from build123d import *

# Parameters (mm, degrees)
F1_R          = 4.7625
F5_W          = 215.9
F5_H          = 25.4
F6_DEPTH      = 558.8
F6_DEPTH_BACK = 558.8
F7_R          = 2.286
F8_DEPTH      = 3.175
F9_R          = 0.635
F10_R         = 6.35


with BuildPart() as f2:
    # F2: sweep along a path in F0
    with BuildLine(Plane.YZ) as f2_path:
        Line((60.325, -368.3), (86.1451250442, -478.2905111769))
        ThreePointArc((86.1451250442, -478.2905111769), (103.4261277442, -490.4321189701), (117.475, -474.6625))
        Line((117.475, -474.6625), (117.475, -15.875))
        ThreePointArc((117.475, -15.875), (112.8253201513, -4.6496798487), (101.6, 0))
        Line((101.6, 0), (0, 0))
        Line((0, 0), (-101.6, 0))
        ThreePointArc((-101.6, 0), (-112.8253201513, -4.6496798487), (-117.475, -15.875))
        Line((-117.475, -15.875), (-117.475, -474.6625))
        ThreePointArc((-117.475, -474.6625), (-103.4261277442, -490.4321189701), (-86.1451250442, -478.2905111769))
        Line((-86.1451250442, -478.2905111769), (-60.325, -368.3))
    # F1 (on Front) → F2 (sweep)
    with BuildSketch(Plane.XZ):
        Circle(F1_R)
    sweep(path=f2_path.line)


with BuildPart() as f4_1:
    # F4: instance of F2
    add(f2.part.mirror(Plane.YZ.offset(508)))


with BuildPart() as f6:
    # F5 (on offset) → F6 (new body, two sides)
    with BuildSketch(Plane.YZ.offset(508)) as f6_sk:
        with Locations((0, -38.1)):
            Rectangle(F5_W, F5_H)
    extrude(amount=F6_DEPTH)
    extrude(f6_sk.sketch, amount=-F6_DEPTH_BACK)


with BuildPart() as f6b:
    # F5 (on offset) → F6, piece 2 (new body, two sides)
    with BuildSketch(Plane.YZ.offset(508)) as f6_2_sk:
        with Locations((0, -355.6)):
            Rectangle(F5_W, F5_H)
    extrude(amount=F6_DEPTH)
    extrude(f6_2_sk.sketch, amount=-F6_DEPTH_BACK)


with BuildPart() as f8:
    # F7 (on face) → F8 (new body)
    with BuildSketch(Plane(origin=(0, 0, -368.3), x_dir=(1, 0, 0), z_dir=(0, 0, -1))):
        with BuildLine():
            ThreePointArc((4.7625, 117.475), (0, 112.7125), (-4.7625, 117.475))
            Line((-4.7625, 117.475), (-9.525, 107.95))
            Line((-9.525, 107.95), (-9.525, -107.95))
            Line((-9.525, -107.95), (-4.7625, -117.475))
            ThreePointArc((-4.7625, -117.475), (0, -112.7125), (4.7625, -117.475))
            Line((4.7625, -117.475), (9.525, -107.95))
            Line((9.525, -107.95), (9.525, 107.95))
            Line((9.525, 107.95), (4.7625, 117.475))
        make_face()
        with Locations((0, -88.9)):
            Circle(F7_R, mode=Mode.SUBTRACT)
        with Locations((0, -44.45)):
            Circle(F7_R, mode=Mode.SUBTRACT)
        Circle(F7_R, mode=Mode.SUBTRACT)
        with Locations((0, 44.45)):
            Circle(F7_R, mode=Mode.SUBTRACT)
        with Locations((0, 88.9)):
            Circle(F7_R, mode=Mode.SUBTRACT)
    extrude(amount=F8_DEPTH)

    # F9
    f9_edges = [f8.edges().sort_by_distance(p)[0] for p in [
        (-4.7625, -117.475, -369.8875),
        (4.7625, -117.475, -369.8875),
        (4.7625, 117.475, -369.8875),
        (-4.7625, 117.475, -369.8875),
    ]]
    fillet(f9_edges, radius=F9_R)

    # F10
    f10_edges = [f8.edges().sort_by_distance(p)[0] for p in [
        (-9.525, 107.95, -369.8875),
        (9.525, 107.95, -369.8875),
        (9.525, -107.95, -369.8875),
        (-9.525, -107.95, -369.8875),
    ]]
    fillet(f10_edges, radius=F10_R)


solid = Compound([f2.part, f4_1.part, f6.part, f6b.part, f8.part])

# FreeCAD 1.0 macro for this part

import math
import FreeCAD as App
import Part
import Sketcher
Q = App.Units.Quantity


def edges_at(feature, points):
    """Names of the edges that pass closest to the given points."""
    edges = feature.Shape.Edges
    near = lambda p: min(range(len(edges)), key=lambda i: edges[i].distToShape(Part.Vertex(*p))[0])
    return sorted({f"Edge{near(p) + 1}" for p in points})


def add_polygon(sketch, points):
    """Adds a closed chain of lines whose ends are joined by coincident constraints."""
    first, n = sketch.GeometryCount, len(points)
    for a, b in zip(points, points[1:] + points[:1]):
        sketch.addGeometry(Part.LineSegment(App.Vector(*a, 0), App.Vector(*b, 0)), False)
    for i in range(n):
        sketch.addConstraint(Sketcher.Constraint("Coincident", first + i, 2, first + (i + 1) % n, 1))

doc = App.newDocument("Part")
body = doc.addObject("PartDesign::Body", "Body")

# Sketch on XZ plane
sketch1 = doc.addObject("Sketcher::SketchObject", "Sketch")
body.addObject(sketch1)
sketch1.AttachmentSupport = (doc.XZ_Plane, [""])
sketch1.MapMode = "FlatFace"
sketch1.addGeometry(Part.Circle(App.Vector(0, 0, 0), App.Vector(0, 0, 1), 4.8), False)
sketch1.addConstraint(Sketcher.Constraint("Coincident", 0, 3, -1, 1))
sketch1.addConstraint(Sketcher.Constraint("Diameter", 0, Q("0.375 in")))

# Sketch on YZ plane
sketch2 = doc.addObject("Sketcher::SketchObject", "Sketch001")
body.addObject(sketch2)
sketch2.AttachmentSupport = (doc.YZ_Plane, [""])
sketch2.MapMode = "FlatFace"
sketch2.addGeometry(Part.LineSegment(App.Vector(60, -368, 0), App.Vector(86, -478, 0)), False)
sketch2.addGeometry(Part.ArcOfCircle(Part.Circle(App.Vector(102, -475, 0), App.Vector(0, 0, 1), 16), math.radians(-167), math.radians(0)), False)
sketch2.addGeometry(Part.LineSegment(App.Vector(117, -475, 0), App.Vector(117, -16, 0)), False)
sketch2.addGeometry(Part.ArcOfCircle(Part.Circle(App.Vector(102, -16, 0), App.Vector(0, 0, 1), 16), math.radians(0), math.radians(90)), False)
sketch2.addGeometry(Part.LineSegment(App.Vector(102, 0, 0), App.Vector(-102, 0, 0)), False)
sketch2.addGeometry(Part.ArcOfCircle(Part.Circle(App.Vector(-102, -16, 0), App.Vector(0, 0, 1), 16), math.radians(90), math.radians(180)), False)
sketch2.addGeometry(Part.LineSegment(App.Vector(-117, -16, 0), App.Vector(-117, -475, 0)), False)
sketch2.addGeometry(Part.ArcOfCircle(Part.Circle(App.Vector(-102, -475, 0), App.Vector(0, 0, 1), 16), math.radians(180), math.radians(347)), False)
sketch2.addGeometry(Part.LineSegment(App.Vector(-86, -478, 0), App.Vector(-60, -368, 0)), False)
sketch2.addConstraint(Sketcher.Constraint("Tangent", 0, 2, 1, 1))
sketch2.addConstraint(Sketcher.Constraint("Tangent", 1, 2, 2, 1))
sketch2.addConstraint(Sketcher.Constraint("Tangent", 2, 2, 3, 1))
sketch2.addConstraint(Sketcher.Constraint("Tangent", 3, 2, 4, 1))
sketch2.addConstraint(Sketcher.Constraint("Tangent", 4, 2, 5, 1))
sketch2.addConstraint(Sketcher.Constraint("Tangent", 5, 2, 6, 1))
sketch2.addConstraint(Sketcher.Constraint("Tangent", 6, 2, 7, 1))
sketch2.addConstraint(Sketcher.Constraint("Tangent", 7, 2, 8, 1))
sketch2.addConstraint(Sketcher.Constraint("Vertical", 2))
sketch2.addConstraint(Sketcher.Constraint("Horizontal", 4))
sketch2.addConstraint(Sketcher.Constraint("Vertical", 6))
sketch2.addConstraint(Sketcher.Constraint("Equal", 1, 3))
sketch2.addConstraint(Sketcher.Constraint("Equal", 3, 5))
sketch2.addConstraint(Sketcher.Constraint("Equal", 5, 7))
sketch2.addConstraint(Sketcher.Constraint("Symmetric", 3, 2, 4, 2, -1, 1))
sketch2.addConstraint(Sketcher.Constraint("Symmetric", 0, 2, 7, 2, -2))
sketch2.addConstraint(Sketcher.Constraint("Horizontal", 0, 1, 8, 2))
sketch2.addConstraint(Sketcher.Constraint("DistanceX", 4, 2, 4, 1, Q("8 in")))
sketch2.addConstraint(Sketcher.Constraint("Radius", 1, Q("0.625 in")))
sketch2.addConstraint(Sketcher.Constraint("DistanceX", 6, 2, 0, 1, Q("7 in")))
sketch2.addConstraint(Sketcher.Constraint("DistanceY", 0, 1, -1, 1, Q("14.5 in")))
sketch2.addConstraint(Sketcher.Constraint("DistanceY", 2, 1, 2, 2, Q("18.0625 in")))
doc.recompute()

additivepipe = doc.addObject("PartDesign::AdditivePipe", "AdditivePipe")
body.addObject(additivepipe)
additivepipe.Profile = sketch1
additivepipe.Spine = (sketch2, ["Edge1", "Edge2", "Edge3", "Edge4", "Edge5", "Edge6", "Edge7", "Edge8", "Edge9"])
body2 = doc.addObject("PartDesign::Body", "Body001")
doc.recompute()

mirroring = doc.addObject("Part::Mirroring", "Mirroring")
mirroring.Source = body
mirroring.Base = App.Vector(508, 0, 0)
mirroring.Normal = App.Vector(1, 0, 0)
body2.BaseFeature = mirroring
doc.recompute()
body3 = doc.addObject("PartDesign::Body", "Body002")

# Sketch on YZ plane
sketch3 = doc.addObject("Sketcher::SketchObject", "Sketch002")
body3.addObject(sketch3)
sketch3.AttachmentSupport = (doc.getObject("YZ_Plane002"), [""])
sketch3.MapMode = "FlatFace"
sketch3.AttachmentOffset = App.Placement(App.Vector(0, 0, 20 * 25.4), App.Rotation())
add_polygon(sketch3, [(-108, -25), (-108, -51), (108, -51), (108, -25)])  # lines 0-3
sketch3.addConstraint(Sketcher.Constraint("Vertical", 0))
sketch3.addConstraint(Sketcher.Constraint("Horizontal", 1))
sketch3.addConstraint(Sketcher.Constraint("Vertical", 2))
sketch3.addConstraint(Sketcher.Constraint("Horizontal", 3))
sketch3.addConstraint(Sketcher.Constraint("DistanceY", 0, 2, 0, 1, Q("1 in")))
sketch3.addConstraint(Sketcher.Constraint("DistanceX", 1, 1, 1, 2, Q("8.5 in")))
sketch3.addConstraint(Sketcher.Constraint("DistanceY", 0, 2, -1, 1, Q("2 in")))
sketch3.addConstraint(Sketcher.Constraint("DistanceX", 0, 2, -1, 1, Q("4.25 in")))
pad1 = doc.addObject("PartDesign::Pad", "Pad")
body3.addObject(pad1)
pad1.Profile = sketch3
pad1.Type = "TwoLengths"
pad1.Length = Q("22 in")
pad1.Length2 = Q("22 in")
body4 = doc.addObject("PartDesign::Body", "Body003")

# Sketch on YZ plane
sketch4 = doc.addObject("Sketcher::SketchObject", "Sketch003")
body4.addObject(sketch4)
sketch4.AttachmentSupport = (doc.getObject("YZ_Plane003"), [""])
sketch4.MapMode = "FlatFace"
sketch4.AttachmentOffset = App.Placement(App.Vector(0, 0, 20 * 25.4), App.Rotation())
add_polygon(sketch4, [(-108, -343), (-108, -368), (108, -368), (108, -343)])  # lines 0-3
sketch4.addConstraint(Sketcher.Constraint("Vertical", 0))
sketch4.addConstraint(Sketcher.Constraint("Horizontal", 1))
sketch4.addConstraint(Sketcher.Constraint("Vertical", 2))
sketch4.addConstraint(Sketcher.Constraint("Horizontal", 3))
sketch4.addConstraint(Sketcher.Constraint("DistanceY", 0, 2, 0, 1, Q("1 in")))
sketch4.addConstraint(Sketcher.Constraint("DistanceX", 1, 1, 1, 2, Q("8.5 in")))
sketch4.addConstraint(Sketcher.Constraint("DistanceY", 0, 2, -1, 1, Q("14.5 in")))
sketch4.addConstraint(Sketcher.Constraint("DistanceX", 0, 2, -1, 1, Q("4.25 in")))
pad2 = doc.addObject("PartDesign::Pad", "Pad001")
body4.addObject(pad2)
pad2.Profile = sketch4
pad2.Type = "TwoLengths"
pad2.Length = Q("22 in")
pad2.Length2 = Q("22 in")
body5 = doc.addObject("PartDesign::Body", "Body004")

# Sketch on XY plane
sketch5 = doc.addObject("Sketcher::SketchObject", "Sketch004")
body5.addObject(sketch5)
sketch5.AttachmentSupport = (doc.getObject("XY_Plane004"), [""])
sketch5.MapMode = "FlatFace"
sketch5.AttachmentOffset = App.Placement(App.Vector(0, 0, -14.5 * 25.4), App.Rotation())
sketch5.addGeometry(Part.ArcOfCircle(Part.Circle(App.Vector(0, -117.5, 0), App.Vector(0, 0, 1), 4.8), math.radians(0), math.radians(180)), False)
sketch5.addGeometry(Part.LineSegment(App.Vector(-4.8, -117.5, 0), App.Vector(-9.5, -108, 0)), False)
sketch5.addGeometry(Part.LineSegment(App.Vector(-9.5, -108, 0), App.Vector(-9.5, 108, 0)), False)
sketch5.addGeometry(Part.LineSegment(App.Vector(-9.5, 108, 0), App.Vector(-4.8, 117.5, 0)), False)
sketch5.addGeometry(Part.ArcOfCircle(Part.Circle(App.Vector(0, 117.5, 0), App.Vector(0, 0, 1), 4.8), math.radians(180), math.radians(360)), False)
sketch5.addGeometry(Part.LineSegment(App.Vector(4.8, 117.5, 0), App.Vector(9.5, 108, 0)), False)
sketch5.addGeometry(Part.LineSegment(App.Vector(9.5, 108, 0), App.Vector(9.5, -108, 0)), False)
sketch5.addGeometry(Part.LineSegment(App.Vector(9.5, -108, 0), App.Vector(4.8, -117.5, 0)), False)
sketch5.addGeometry(Part.Circle(App.Vector(0, 88.9, 0), App.Vector(0, 0, 1), 2.3), False)
sketch5.addGeometry(Part.Circle(App.Vector(0, 44.5, 0), App.Vector(0, 0, 1), 2.3), False)
sketch5.addGeometry(Part.Circle(App.Vector(0, 0, 0), App.Vector(0, 0, 1), 2.3), False)
sketch5.addGeometry(Part.Circle(App.Vector(0, -44.5, 0), App.Vector(0, 0, 1), 2.3), False)
sketch5.addGeometry(Part.Circle(App.Vector(0, -88.9, 0), App.Vector(0, 0, 1), 2.3), False)
sketch5.addConstraint(Sketcher.Constraint("Coincident", 0, 2, 1, 1))
sketch5.addConstraint(Sketcher.Constraint("Coincident", 1, 2, 2, 1))
sketch5.addConstraint(Sketcher.Constraint("Coincident", 2, 2, 3, 1))
sketch5.addConstraint(Sketcher.Constraint("Coincident", 3, 2, 4, 1))
sketch5.addConstraint(Sketcher.Constraint("Coincident", 4, 2, 5, 1))
sketch5.addConstraint(Sketcher.Constraint("Coincident", 5, 2, 6, 1))
sketch5.addConstraint(Sketcher.Constraint("Coincident", 6, 2, 7, 1))
sketch5.addConstraint(Sketcher.Constraint("Coincident", 7, 2, 0, 1))
sketch5.addConstraint(Sketcher.Constraint("Vertical", 2))
sketch5.addConstraint(Sketcher.Constraint("Vertical", 6))
sketch5.addConstraint(Sketcher.Constraint("Coincident", 10, 3, -1, 1))
sketch5.addConstraint(Sketcher.Constraint("Equal", 0, 4))
sketch5.addConstraint(Sketcher.Constraint("Equal", 8, 9))
sketch5.addConstraint(Sketcher.Constraint("Equal", 9, 10))
sketch5.addConstraint(Sketcher.Constraint("Equal", 10, 11))
sketch5.addConstraint(Sketcher.Constraint("Equal", 11, 12))
sketch5.addConstraint(Sketcher.Constraint("Symmetric", 0, 3, 4, 3, -1, 1))
sketch5.addConstraint(Sketcher.Constraint("Symmetric", 9, 3, 11, 3, -1, 1))
sketch5.addConstraint(Sketcher.Constraint("Symmetric", 8, 3, 12, 3, -1, 1))
sketch5.addConstraint(Sketcher.Constraint("Symmetric", 1, 2, 5, 2, -1, 1))
sketch5.addConstraint(Sketcher.Constraint("Symmetric", 3, 2, 4, 2, -2))
sketch5.addConstraint(Sketcher.Constraint("PointOnObject", 8, 3, -2))
sketch5.addConstraint(Sketcher.Constraint("PointOnObject", 9, 3, -2))
sketch5.addConstraint(Sketcher.Constraint("Parallel", 1, 5))
sketch5.addConstraint(Sketcher.Constraint("Parallel", 3, 7))
sketch5.addConstraint(Sketcher.Constraint("Horizontal", 4, 3, 3, 2))
sketch5.addConstraint(Sketcher.Constraint("Horizontal", 2, 2, 5, 2))
sketch5.addConstraint(Sketcher.Constraint("Horizontal", 1, 2, 6, 2))
sketch5.addConstraint(Sketcher.Constraint("Diameter", 8, Q("0.18 in")))
sketch5.addConstraint(Sketcher.Constraint("DistanceY", 2, 1, 2, 2, Q("8.5 in")))
sketch5.addConstraint(Sketcher.Constraint("Radius", 0, Q("0.1875 in")))
sketch5.addConstraint(Sketcher.Constraint("DistanceY", 12, 3, 8, 3, Q("7 in")))
sketch5.addConstraint(Sketcher.Constraint("DistanceY", 11, 3, 2, 2, Q("6 in")))
sketch5.addConstraint(Sketcher.Constraint("DistanceY", 0, 3, 4, 3, Q("9.25 in")))
sketch5.addConstraint(Sketcher.Constraint("DistanceX", 2, 2, 5, 2, Q("0.75 in")))
pad3 = doc.addObject("PartDesign::Pad", "Pad002")
body5.addObject(pad3)
pad3.Profile = sketch5
pad3.Length = Q("0.125 in")
pad3.Reversed = True
doc.recompute()

fillet = doc.addObject("PartDesign::Fillet", "Fillet")
body5.addObject(fillet)
fillet.Base = (pad3, edges_at(pad3, [
    (-4.763, -117.475, -369.887),
    (4.763, -117.475, -369.887),
    (4.763, 117.475, -369.887),
    (-4.763, 117.475, -369.887),
]))
fillet.Radius = Q("0.025 in")
doc.recompute()

fillet2 = doc.addObject("PartDesign::Fillet", "Fillet001")
body5.addObject(fillet2)
fillet2.Base = (fillet, edges_at(fillet, [
    (-9.525, 107.95, -369.887),
    (9.525, 107.95, -369.887),
    (9.525, -107.95, -369.887),
    (-9.525, -107.95, -369.887),
]))
fillet2.Radius = Q("0.25 in")
mirroring.Visibility = False

doc.recompute()
